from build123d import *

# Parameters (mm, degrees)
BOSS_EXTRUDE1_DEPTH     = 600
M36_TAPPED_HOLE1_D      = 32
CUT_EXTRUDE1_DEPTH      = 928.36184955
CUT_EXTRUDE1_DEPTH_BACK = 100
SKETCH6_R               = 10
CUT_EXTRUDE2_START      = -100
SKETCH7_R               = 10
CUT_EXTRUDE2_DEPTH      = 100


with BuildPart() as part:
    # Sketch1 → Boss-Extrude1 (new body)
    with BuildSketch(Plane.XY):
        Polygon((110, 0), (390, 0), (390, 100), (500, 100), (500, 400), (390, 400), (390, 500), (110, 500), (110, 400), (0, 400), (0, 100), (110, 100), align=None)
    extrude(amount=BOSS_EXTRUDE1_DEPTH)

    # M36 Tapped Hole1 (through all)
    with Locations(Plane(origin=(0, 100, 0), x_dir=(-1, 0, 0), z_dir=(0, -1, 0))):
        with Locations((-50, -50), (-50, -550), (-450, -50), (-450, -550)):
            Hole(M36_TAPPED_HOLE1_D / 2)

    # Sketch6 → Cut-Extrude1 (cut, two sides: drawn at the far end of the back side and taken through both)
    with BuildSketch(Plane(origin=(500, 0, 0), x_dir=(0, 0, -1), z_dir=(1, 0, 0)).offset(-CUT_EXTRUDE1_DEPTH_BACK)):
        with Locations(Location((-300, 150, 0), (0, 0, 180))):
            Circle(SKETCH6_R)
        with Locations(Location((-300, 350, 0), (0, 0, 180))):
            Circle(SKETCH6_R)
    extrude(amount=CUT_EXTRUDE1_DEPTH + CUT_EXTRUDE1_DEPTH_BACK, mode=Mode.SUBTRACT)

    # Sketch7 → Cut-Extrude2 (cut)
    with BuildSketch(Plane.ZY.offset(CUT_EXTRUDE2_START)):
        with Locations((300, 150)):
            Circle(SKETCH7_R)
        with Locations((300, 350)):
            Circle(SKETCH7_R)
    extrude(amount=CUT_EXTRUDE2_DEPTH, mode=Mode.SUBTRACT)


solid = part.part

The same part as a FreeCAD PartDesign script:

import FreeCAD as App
import Part
import Sketcher
from FreeCAD import Vector


def add_polygon(sketch, points):
    """Adds a closed chain of lines whose ends are joined by coincident constraints."""
    first, n = sketch.GeometryCount, len(points)
    for a, b in zip(points, points[1:] + points[:1]):
        sketch.addGeometry(Part.LineSegment(App.Vector(*a, 0), App.Vector(*b, 0)), False)
    for i in range(n):
        sketch.addConstraint(Sketcher.Constraint("Coincident", first + i, 2, first + (i + 1) % n, 1))

doc = App.newDocument("Part")
body = doc.addObject("PartDesign::Body", "Body")

sketch1 = doc.addObject("Sketcher::SketchObject", "Sketch")
body.addObject(sketch1)
sketch1.AttachmentSupport = (doc.XY_Plane, [""])
sketch1.MapMode = "FlatFace"
add_polygon(sketch1, [(110, 0), (390, 0), (390, 100), (500, 100), (500, 400), (390, 400), (390, 500), (110, 500), (110, 400), (0, 400), (0, 100), (110, 100)])
sketch1.addConstraint([
    Sketcher.Constraint("Horizontal", 0),
    Sketcher.Constraint("Vertical", 1),
    Sketcher.Constraint("Horizontal", 2),
    Sketcher.Constraint("Vertical", 3),
    Sketcher.Constraint("Horizontal", 4),
    Sketcher.Constraint("Vertical", 5),
    Sketcher.Constraint("Horizontal", 6),
    Sketcher.Constraint("Vertical", 7),
    Sketcher.Constraint("Horizontal", 8),
    Sketcher.Constraint("Vertical", 9),
    Sketcher.Constraint("Horizontal", 10),
    Sketcher.Constraint("Vertical", 11),
    Sketcher.Constraint("PointOnObject", 0, 2, -1),
    Sketcher.Constraint("PointOnObject", 8, 2, -2),
    Sketcher.Constraint("Horizontal", 4, 2, 7, 2),
    Sketcher.Constraint("Horizontal", 2, 2, 9, 2),
    Sketcher.Constraint("Vertical", 1, 2, 4, 2),
    Sketcher.Constraint("Vertical", 7, 2, 10, 2),
    Sketcher.Constraint("Equal", 4, 8),
    Sketcher.Constraint("Equal", 1, 5),
    Sketcher.Constraint("DistanceX", 0, 1, 0, 2, 280.0),
    Sketcher.Constraint("DistanceX", 2, 1, 2, 2, 110.0),
    Sketcher.Constraint("DistanceY", 1, 1, 1, 2, 100.0),
    Sketcher.Constraint("DistanceY", 3, 1, 3, 2, 300.0),
])
pad1 = doc.addObject("PartDesign::Pad", "Pad")
body.addObject(pad1)
pad1.Profile = sketch1
pad1.Length = 600

sketch2 = doc.addObject("Sketcher::SketchObject", "Sketch001")
body.addObject(sketch2)
sketch2.AttachmentSupport = (doc.XZ_Plane, [""])
sketch2.MapMode = "FlatFace"
sketch2.AttachmentOffset = App.Placement(Vector(0, 0, -100), App.Rotation())
sketch2.addGeometry([
    Part.Circle(Vector(50, 50, 0), Vector(0, 0, 1), 16),
    Part.Circle(Vector(50, 550, 0), Vector(0, 0, 1), 16),
    Part.Circle(Vector(450, 50, 0), Vector(0, 0, 1), 16),
    Part.Circle(Vector(450, 550, 0), Vector(0, 0, 1), 16),
], False)
sketch2.addConstraint([
    Sketcher.Constraint("Equal", 0, 1),
    Sketcher.Constraint("Equal", 1, 2),
    Sketcher.Constraint("Equal", 2, 3),
    Sketcher.Constraint("Horizontal", 0, 3, 2, 3),
    Sketcher.Constraint("Horizontal", 1, 3, 3, 3),
    Sketcher.Constraint("Vertical", 0, 3, 1, 3),
    Sketcher.Constraint("Vertical", 2, 3, 3, 3),
    Sketcher.Constraint("Diameter", 0, 32.0),
    Sketcher.Constraint("DistanceX", -1, 1, 0, 3, 50.0),
    Sketcher.Constraint("DistanceY", -1, 1, 0, 3, 50.0),
    Sketcher.Constraint("DistanceY", -1, 1, 1, 3, 550.0),
    Sketcher.Constraint("DistanceX", -1, 1, 2, 3, 450.0),
])
doc.recompute()
hole = doc.addObject("PartDesign::Hole", "Hole")
body.addObject(hole)
hole.Profile = sketch2
hole.ThreadType = "None"
hole.Diameter = 32
hole.DepthType = "ThroughAll"

sketch3 = doc.addObject("Sketcher::SketchObject", "Sketch002")
body.addObject(sketch3)
sketch3.AttachmentSupport = (doc.YZ_Plane, [""])
sketch3.MapMode = "FlatFace"
sketch3.AttachmentOffset = App.Placement(Vector(0, 0, 500), App.Rotation())
sketch3.addGeometry([
    Part.Circle(Vector(150, 300, 0), Vector(0, 0, 1), 10),
    Part.Circle(Vector(350, 300, 0), Vector(0, 0, 1), 10),
], False)
sketch3.addConstraint([
    Sketcher.Constraint("Equal", 0, 1),
    Sketcher.Constraint("Horizontal", 0, 3, 1, 3),
    Sketcher.Constraint("Diameter", 0, 20.0),
    Sketcher.Constraint("DistanceX", -1, 1, 0, 3, 150.0),
    Sketcher.Constraint("DistanceY", -1, 1, 0, 3, 300.0),
    Sketcher.Constraint("DistanceX", -1, 1, 1, 3, 350.0),
])
pocket1 = doc.addObject("PartDesign::Pocket", "Pocket")
body.addObject(pocket1)
pocket1.Profile = sketch3
pocket1.Type = "TwoLengths"
pocket1.Length = 928.36185
pocket1.Length2 = 100
pocket1.Reversed = True

sketch4 = doc.addObject("Sketcher::SketchObject", "Sketch003")
body.addObject(sketch4)
sketch4.AttachmentSupport = (doc.YZ_Plane, [""])
sketch4.MapMode = "FlatFace"
sketch4.AttachmentOffset = App.Placement(Vector(0, 0, 100), App.Rotation())
sketch4.addGeometry([
    Part.Circle(Vector(150, 300, 0), Vector(0, 0, 1), 10),
    Part.Circle(Vector(350, 300, 0), Vector(0, 0, 1), 10),
], False)
sketch4.addConstraint([
    Sketcher.Constraint("Equal", 0, 1),
    Sketcher.Constraint("Horizontal", 0, 3, 1, 3),
    Sketcher.Constraint("Diameter", 0, 20.0),
    Sketcher.Constraint("DistanceX", -1, 1, 0, 3, 150.0),
    Sketcher.Constraint("DistanceY", -1, 1, 0, 3, 300.0),
    Sketcher.Constraint("DistanceX", -1, 1, 1, 3, 350.0),
])
pocket2 = doc.addObject("PartDesign::Pocket", "Pocket001")
body.addObject(pocket2)
pocket2.Profile = sketch4
pocket2.Length = 100

doc.recompute()
